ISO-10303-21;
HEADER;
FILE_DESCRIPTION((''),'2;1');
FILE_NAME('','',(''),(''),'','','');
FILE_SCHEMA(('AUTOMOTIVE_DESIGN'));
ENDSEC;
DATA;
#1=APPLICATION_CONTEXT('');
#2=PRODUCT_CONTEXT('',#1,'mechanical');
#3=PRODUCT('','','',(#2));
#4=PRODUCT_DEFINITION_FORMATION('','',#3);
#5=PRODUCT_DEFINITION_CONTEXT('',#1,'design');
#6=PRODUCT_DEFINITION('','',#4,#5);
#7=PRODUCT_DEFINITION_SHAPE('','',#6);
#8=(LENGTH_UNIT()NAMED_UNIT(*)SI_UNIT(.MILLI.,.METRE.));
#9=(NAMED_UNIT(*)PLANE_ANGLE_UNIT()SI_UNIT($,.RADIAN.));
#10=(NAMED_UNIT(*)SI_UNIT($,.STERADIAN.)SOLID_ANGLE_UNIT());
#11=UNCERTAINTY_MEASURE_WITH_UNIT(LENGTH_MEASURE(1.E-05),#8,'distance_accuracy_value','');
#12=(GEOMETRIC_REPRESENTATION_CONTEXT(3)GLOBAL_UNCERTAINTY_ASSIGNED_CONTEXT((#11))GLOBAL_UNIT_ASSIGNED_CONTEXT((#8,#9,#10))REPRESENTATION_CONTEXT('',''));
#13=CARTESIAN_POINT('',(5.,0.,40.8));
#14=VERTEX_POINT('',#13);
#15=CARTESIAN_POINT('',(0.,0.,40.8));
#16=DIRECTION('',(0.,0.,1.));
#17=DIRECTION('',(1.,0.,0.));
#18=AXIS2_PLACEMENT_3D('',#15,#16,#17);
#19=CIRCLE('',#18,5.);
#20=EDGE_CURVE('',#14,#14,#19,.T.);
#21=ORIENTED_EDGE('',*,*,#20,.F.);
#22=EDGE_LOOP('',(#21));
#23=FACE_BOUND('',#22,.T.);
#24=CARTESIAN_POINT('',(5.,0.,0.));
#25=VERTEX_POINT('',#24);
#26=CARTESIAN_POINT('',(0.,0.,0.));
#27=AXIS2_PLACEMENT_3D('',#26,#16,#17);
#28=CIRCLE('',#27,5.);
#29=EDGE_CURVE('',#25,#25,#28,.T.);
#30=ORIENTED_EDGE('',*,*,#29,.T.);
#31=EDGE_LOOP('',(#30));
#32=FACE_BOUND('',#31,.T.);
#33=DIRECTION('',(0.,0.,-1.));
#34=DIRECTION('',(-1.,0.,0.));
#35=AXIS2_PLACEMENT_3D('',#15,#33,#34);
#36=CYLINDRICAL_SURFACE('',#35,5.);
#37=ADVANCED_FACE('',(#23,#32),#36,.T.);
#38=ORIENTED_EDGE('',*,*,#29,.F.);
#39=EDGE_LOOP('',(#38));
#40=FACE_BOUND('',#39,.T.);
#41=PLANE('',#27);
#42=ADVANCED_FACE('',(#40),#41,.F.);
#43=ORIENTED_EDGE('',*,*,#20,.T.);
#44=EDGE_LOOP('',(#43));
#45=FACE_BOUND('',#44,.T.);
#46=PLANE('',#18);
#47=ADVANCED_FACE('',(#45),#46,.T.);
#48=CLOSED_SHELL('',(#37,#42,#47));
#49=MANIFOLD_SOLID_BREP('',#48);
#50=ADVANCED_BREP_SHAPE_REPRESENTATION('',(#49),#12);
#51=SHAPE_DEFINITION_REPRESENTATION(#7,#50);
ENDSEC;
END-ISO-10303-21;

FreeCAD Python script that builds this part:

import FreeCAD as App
import Part
import Sketcher

doc = App.newDocument("Part")
params = doc.addObject("Spreadsheet::Sheet", "Params")
for row, (alias, value) in enumerate([
    ("sketch1_diameter", "10 mm"),
    ("pad1_length", "40.8 mm"),
], start=1):
    params.set(f"A{row}", alias)
    params.set(f"B{row}", "=" + value)
    params.setAlias(f"B{row}", alias)

body = doc.addObject("PartDesign::Body", "Body")

sketch1 = doc.addObject("Sketcher::SketchObject", "Sketch")
body.addObject(sketch1)
sketch1.AttachmentSupport = (doc.XY_Plane, [""])
sketch1.MapMode = "FlatFace"
sketch1.addGeometry(Part.Circle(App.Vector(0, 0, 0), App.Vector(0, 0, 1), 5), False)
sketch1.addConstraint([
    Sketcher.Constraint("Coincident", 0, 3, -1, 1),
    Sketcher.Constraint("Diameter", 0, 10.0),
])
sketch1.setExpression("Constraints[1]", "Params.sketch1_diameter")
pad1 = doc.addObject("PartDesign::Pad", "Pad")
body.addObject(pad1)
pad1.Profile = sketch1
pad1.setExpression("Length", "Params.pad1_length")

doc.recompute()
